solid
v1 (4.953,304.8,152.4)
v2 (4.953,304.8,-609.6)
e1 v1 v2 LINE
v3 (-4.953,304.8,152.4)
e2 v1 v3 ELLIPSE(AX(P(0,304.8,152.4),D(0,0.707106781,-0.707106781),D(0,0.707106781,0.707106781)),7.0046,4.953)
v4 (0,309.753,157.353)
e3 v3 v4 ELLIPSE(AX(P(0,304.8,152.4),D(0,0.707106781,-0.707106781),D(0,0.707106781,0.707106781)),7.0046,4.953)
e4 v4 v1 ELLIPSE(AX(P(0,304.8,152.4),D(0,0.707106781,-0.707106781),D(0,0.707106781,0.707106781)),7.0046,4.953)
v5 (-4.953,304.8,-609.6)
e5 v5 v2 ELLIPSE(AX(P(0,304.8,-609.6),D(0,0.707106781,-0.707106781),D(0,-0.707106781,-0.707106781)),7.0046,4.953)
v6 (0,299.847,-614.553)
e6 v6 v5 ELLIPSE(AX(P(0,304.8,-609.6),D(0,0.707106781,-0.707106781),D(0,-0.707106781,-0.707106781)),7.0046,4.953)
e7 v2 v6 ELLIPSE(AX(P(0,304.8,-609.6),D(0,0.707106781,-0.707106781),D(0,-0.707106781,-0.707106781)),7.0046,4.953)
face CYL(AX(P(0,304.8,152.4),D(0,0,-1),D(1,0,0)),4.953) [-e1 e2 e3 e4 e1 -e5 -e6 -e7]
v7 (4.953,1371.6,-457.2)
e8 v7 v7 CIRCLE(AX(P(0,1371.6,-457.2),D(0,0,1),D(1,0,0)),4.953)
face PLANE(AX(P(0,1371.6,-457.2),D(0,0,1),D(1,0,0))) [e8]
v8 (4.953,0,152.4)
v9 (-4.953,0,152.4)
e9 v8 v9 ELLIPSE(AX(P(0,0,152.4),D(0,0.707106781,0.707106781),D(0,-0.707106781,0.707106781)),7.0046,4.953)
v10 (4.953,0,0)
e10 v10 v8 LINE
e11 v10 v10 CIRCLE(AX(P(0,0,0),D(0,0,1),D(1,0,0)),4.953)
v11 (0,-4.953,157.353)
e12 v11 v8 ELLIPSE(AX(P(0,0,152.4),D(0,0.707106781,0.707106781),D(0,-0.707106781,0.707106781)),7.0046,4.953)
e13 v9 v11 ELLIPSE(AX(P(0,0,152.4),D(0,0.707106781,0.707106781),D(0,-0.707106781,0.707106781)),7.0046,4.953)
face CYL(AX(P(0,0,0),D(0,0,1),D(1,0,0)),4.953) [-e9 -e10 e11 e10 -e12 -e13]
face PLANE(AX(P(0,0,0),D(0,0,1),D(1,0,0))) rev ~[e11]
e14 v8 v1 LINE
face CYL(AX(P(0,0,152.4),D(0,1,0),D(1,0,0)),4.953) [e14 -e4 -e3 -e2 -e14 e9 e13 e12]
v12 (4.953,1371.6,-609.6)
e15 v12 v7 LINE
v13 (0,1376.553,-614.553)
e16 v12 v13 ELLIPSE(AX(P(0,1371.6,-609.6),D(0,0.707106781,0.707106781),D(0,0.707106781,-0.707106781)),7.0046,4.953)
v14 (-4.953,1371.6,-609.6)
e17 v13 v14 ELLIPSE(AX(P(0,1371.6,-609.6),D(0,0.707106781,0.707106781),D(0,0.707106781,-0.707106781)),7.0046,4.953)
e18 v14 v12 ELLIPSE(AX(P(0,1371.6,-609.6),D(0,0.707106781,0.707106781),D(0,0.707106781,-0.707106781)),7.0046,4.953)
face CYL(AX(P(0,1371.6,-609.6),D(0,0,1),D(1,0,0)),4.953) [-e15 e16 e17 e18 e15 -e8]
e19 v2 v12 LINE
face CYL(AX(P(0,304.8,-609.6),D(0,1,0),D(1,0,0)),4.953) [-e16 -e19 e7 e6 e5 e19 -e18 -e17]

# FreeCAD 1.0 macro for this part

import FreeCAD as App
import Part
import Sketcher
from FreeCAD import Vector
Q = App.Units.Quantity

doc = App.newDocument("Part")
body = doc.addObject("PartDesign::Body", "Body")

# Sketch on XY plane
sketch1 = body.newObject("Sketcher::SketchObject", "Sketch")
sketch1.AttachmentSupport = (doc.getObject("XY_Plane"), [""])
sketch1.MapMode = "FlatFace"
sketch1.addGeometry(Part.Circle(Vector(0, 0, 0), Vector(0, 0, 1), 5), False)
sketch1.addConstraint([
    Sketcher.Constraint("Coincident", 0, 3, -1, 1),
    Sketcher.Constraint("Diameter", 0, Q("0.39 in")),
])

# Sketch on YZ plane
sketch2 = body.newObject("Sketcher::SketchObject", "Sketch001")
sketch2.AttachmentSupport = (doc.getObject("YZ_Plane"), [""])
sketch2.MapMode = "FlatFace"
sketch2.addGeometry([
    Part.LineSegment(Vector(0, 0, 0), Vector(0, 152, 0)),  # 0
    Part.LineSegment(Vector(0, 152, 0), Vector(305, 152, 0)),  # 1
    Part.LineSegment(Vector(305, 152, 0), Vector(305, -610, 0)),  # 2
    Part.LineSegment(Vector(305, -610, 0), Vector(1372, -610, 0)),  # 3
    Part.LineSegment(Vector(1372, -610, 0), Vector(1372, -457, 0)),  # 4
], False)
sketch2.addConstraint([
    Sketcher.Constraint("Coincident", 0, 2, 1, 1),
    Sketcher.Constraint("Coincident", 1, 2, 2, 1),
    Sketcher.Constraint("Coincident", 2, 2, 3, 1),
    Sketcher.Constraint("Coincident", 3, 2, 4, 1),
    Sketcher.Constraint("Vertical", 0),
    Sketcher.Constraint("Horizontal", 1),
    Sketcher.Constraint("Vertical", 2),
    Sketcher.Constraint("Horizontal", 3),
    Sketcher.Constraint("Vertical", 4),
    Sketcher.Constraint("Coincident", 0, 1, -1, 1),
    Sketcher.Constraint("Equal", 0, 4),
    Sketcher.Constraint("DistanceX", 1, 1, 1, 2, Q("12 in")),
    Sketcher.Constraint("DistanceX", 3, 1, 3, 2, Q("42 in")),
    Sketcher.Constraint("DistanceY", 0, 1, 0, 2, Q("6 in")),
    Sketcher.Constraint("DistanceY", 2, 2, 2, 1, Q("30 in")),
])
doc.recompute()

additivepipe = body.newObject("PartDesign::AdditivePipe", "AdditivePipe")
additivepipe.Profile = sketch1
additivepipe.Spine = (sketch2, ["Edge1", "Edge2", "Edge3", "Edge4", "Edge5"])
additivepipe.Transition = "Right corner"

doc.recompute()
